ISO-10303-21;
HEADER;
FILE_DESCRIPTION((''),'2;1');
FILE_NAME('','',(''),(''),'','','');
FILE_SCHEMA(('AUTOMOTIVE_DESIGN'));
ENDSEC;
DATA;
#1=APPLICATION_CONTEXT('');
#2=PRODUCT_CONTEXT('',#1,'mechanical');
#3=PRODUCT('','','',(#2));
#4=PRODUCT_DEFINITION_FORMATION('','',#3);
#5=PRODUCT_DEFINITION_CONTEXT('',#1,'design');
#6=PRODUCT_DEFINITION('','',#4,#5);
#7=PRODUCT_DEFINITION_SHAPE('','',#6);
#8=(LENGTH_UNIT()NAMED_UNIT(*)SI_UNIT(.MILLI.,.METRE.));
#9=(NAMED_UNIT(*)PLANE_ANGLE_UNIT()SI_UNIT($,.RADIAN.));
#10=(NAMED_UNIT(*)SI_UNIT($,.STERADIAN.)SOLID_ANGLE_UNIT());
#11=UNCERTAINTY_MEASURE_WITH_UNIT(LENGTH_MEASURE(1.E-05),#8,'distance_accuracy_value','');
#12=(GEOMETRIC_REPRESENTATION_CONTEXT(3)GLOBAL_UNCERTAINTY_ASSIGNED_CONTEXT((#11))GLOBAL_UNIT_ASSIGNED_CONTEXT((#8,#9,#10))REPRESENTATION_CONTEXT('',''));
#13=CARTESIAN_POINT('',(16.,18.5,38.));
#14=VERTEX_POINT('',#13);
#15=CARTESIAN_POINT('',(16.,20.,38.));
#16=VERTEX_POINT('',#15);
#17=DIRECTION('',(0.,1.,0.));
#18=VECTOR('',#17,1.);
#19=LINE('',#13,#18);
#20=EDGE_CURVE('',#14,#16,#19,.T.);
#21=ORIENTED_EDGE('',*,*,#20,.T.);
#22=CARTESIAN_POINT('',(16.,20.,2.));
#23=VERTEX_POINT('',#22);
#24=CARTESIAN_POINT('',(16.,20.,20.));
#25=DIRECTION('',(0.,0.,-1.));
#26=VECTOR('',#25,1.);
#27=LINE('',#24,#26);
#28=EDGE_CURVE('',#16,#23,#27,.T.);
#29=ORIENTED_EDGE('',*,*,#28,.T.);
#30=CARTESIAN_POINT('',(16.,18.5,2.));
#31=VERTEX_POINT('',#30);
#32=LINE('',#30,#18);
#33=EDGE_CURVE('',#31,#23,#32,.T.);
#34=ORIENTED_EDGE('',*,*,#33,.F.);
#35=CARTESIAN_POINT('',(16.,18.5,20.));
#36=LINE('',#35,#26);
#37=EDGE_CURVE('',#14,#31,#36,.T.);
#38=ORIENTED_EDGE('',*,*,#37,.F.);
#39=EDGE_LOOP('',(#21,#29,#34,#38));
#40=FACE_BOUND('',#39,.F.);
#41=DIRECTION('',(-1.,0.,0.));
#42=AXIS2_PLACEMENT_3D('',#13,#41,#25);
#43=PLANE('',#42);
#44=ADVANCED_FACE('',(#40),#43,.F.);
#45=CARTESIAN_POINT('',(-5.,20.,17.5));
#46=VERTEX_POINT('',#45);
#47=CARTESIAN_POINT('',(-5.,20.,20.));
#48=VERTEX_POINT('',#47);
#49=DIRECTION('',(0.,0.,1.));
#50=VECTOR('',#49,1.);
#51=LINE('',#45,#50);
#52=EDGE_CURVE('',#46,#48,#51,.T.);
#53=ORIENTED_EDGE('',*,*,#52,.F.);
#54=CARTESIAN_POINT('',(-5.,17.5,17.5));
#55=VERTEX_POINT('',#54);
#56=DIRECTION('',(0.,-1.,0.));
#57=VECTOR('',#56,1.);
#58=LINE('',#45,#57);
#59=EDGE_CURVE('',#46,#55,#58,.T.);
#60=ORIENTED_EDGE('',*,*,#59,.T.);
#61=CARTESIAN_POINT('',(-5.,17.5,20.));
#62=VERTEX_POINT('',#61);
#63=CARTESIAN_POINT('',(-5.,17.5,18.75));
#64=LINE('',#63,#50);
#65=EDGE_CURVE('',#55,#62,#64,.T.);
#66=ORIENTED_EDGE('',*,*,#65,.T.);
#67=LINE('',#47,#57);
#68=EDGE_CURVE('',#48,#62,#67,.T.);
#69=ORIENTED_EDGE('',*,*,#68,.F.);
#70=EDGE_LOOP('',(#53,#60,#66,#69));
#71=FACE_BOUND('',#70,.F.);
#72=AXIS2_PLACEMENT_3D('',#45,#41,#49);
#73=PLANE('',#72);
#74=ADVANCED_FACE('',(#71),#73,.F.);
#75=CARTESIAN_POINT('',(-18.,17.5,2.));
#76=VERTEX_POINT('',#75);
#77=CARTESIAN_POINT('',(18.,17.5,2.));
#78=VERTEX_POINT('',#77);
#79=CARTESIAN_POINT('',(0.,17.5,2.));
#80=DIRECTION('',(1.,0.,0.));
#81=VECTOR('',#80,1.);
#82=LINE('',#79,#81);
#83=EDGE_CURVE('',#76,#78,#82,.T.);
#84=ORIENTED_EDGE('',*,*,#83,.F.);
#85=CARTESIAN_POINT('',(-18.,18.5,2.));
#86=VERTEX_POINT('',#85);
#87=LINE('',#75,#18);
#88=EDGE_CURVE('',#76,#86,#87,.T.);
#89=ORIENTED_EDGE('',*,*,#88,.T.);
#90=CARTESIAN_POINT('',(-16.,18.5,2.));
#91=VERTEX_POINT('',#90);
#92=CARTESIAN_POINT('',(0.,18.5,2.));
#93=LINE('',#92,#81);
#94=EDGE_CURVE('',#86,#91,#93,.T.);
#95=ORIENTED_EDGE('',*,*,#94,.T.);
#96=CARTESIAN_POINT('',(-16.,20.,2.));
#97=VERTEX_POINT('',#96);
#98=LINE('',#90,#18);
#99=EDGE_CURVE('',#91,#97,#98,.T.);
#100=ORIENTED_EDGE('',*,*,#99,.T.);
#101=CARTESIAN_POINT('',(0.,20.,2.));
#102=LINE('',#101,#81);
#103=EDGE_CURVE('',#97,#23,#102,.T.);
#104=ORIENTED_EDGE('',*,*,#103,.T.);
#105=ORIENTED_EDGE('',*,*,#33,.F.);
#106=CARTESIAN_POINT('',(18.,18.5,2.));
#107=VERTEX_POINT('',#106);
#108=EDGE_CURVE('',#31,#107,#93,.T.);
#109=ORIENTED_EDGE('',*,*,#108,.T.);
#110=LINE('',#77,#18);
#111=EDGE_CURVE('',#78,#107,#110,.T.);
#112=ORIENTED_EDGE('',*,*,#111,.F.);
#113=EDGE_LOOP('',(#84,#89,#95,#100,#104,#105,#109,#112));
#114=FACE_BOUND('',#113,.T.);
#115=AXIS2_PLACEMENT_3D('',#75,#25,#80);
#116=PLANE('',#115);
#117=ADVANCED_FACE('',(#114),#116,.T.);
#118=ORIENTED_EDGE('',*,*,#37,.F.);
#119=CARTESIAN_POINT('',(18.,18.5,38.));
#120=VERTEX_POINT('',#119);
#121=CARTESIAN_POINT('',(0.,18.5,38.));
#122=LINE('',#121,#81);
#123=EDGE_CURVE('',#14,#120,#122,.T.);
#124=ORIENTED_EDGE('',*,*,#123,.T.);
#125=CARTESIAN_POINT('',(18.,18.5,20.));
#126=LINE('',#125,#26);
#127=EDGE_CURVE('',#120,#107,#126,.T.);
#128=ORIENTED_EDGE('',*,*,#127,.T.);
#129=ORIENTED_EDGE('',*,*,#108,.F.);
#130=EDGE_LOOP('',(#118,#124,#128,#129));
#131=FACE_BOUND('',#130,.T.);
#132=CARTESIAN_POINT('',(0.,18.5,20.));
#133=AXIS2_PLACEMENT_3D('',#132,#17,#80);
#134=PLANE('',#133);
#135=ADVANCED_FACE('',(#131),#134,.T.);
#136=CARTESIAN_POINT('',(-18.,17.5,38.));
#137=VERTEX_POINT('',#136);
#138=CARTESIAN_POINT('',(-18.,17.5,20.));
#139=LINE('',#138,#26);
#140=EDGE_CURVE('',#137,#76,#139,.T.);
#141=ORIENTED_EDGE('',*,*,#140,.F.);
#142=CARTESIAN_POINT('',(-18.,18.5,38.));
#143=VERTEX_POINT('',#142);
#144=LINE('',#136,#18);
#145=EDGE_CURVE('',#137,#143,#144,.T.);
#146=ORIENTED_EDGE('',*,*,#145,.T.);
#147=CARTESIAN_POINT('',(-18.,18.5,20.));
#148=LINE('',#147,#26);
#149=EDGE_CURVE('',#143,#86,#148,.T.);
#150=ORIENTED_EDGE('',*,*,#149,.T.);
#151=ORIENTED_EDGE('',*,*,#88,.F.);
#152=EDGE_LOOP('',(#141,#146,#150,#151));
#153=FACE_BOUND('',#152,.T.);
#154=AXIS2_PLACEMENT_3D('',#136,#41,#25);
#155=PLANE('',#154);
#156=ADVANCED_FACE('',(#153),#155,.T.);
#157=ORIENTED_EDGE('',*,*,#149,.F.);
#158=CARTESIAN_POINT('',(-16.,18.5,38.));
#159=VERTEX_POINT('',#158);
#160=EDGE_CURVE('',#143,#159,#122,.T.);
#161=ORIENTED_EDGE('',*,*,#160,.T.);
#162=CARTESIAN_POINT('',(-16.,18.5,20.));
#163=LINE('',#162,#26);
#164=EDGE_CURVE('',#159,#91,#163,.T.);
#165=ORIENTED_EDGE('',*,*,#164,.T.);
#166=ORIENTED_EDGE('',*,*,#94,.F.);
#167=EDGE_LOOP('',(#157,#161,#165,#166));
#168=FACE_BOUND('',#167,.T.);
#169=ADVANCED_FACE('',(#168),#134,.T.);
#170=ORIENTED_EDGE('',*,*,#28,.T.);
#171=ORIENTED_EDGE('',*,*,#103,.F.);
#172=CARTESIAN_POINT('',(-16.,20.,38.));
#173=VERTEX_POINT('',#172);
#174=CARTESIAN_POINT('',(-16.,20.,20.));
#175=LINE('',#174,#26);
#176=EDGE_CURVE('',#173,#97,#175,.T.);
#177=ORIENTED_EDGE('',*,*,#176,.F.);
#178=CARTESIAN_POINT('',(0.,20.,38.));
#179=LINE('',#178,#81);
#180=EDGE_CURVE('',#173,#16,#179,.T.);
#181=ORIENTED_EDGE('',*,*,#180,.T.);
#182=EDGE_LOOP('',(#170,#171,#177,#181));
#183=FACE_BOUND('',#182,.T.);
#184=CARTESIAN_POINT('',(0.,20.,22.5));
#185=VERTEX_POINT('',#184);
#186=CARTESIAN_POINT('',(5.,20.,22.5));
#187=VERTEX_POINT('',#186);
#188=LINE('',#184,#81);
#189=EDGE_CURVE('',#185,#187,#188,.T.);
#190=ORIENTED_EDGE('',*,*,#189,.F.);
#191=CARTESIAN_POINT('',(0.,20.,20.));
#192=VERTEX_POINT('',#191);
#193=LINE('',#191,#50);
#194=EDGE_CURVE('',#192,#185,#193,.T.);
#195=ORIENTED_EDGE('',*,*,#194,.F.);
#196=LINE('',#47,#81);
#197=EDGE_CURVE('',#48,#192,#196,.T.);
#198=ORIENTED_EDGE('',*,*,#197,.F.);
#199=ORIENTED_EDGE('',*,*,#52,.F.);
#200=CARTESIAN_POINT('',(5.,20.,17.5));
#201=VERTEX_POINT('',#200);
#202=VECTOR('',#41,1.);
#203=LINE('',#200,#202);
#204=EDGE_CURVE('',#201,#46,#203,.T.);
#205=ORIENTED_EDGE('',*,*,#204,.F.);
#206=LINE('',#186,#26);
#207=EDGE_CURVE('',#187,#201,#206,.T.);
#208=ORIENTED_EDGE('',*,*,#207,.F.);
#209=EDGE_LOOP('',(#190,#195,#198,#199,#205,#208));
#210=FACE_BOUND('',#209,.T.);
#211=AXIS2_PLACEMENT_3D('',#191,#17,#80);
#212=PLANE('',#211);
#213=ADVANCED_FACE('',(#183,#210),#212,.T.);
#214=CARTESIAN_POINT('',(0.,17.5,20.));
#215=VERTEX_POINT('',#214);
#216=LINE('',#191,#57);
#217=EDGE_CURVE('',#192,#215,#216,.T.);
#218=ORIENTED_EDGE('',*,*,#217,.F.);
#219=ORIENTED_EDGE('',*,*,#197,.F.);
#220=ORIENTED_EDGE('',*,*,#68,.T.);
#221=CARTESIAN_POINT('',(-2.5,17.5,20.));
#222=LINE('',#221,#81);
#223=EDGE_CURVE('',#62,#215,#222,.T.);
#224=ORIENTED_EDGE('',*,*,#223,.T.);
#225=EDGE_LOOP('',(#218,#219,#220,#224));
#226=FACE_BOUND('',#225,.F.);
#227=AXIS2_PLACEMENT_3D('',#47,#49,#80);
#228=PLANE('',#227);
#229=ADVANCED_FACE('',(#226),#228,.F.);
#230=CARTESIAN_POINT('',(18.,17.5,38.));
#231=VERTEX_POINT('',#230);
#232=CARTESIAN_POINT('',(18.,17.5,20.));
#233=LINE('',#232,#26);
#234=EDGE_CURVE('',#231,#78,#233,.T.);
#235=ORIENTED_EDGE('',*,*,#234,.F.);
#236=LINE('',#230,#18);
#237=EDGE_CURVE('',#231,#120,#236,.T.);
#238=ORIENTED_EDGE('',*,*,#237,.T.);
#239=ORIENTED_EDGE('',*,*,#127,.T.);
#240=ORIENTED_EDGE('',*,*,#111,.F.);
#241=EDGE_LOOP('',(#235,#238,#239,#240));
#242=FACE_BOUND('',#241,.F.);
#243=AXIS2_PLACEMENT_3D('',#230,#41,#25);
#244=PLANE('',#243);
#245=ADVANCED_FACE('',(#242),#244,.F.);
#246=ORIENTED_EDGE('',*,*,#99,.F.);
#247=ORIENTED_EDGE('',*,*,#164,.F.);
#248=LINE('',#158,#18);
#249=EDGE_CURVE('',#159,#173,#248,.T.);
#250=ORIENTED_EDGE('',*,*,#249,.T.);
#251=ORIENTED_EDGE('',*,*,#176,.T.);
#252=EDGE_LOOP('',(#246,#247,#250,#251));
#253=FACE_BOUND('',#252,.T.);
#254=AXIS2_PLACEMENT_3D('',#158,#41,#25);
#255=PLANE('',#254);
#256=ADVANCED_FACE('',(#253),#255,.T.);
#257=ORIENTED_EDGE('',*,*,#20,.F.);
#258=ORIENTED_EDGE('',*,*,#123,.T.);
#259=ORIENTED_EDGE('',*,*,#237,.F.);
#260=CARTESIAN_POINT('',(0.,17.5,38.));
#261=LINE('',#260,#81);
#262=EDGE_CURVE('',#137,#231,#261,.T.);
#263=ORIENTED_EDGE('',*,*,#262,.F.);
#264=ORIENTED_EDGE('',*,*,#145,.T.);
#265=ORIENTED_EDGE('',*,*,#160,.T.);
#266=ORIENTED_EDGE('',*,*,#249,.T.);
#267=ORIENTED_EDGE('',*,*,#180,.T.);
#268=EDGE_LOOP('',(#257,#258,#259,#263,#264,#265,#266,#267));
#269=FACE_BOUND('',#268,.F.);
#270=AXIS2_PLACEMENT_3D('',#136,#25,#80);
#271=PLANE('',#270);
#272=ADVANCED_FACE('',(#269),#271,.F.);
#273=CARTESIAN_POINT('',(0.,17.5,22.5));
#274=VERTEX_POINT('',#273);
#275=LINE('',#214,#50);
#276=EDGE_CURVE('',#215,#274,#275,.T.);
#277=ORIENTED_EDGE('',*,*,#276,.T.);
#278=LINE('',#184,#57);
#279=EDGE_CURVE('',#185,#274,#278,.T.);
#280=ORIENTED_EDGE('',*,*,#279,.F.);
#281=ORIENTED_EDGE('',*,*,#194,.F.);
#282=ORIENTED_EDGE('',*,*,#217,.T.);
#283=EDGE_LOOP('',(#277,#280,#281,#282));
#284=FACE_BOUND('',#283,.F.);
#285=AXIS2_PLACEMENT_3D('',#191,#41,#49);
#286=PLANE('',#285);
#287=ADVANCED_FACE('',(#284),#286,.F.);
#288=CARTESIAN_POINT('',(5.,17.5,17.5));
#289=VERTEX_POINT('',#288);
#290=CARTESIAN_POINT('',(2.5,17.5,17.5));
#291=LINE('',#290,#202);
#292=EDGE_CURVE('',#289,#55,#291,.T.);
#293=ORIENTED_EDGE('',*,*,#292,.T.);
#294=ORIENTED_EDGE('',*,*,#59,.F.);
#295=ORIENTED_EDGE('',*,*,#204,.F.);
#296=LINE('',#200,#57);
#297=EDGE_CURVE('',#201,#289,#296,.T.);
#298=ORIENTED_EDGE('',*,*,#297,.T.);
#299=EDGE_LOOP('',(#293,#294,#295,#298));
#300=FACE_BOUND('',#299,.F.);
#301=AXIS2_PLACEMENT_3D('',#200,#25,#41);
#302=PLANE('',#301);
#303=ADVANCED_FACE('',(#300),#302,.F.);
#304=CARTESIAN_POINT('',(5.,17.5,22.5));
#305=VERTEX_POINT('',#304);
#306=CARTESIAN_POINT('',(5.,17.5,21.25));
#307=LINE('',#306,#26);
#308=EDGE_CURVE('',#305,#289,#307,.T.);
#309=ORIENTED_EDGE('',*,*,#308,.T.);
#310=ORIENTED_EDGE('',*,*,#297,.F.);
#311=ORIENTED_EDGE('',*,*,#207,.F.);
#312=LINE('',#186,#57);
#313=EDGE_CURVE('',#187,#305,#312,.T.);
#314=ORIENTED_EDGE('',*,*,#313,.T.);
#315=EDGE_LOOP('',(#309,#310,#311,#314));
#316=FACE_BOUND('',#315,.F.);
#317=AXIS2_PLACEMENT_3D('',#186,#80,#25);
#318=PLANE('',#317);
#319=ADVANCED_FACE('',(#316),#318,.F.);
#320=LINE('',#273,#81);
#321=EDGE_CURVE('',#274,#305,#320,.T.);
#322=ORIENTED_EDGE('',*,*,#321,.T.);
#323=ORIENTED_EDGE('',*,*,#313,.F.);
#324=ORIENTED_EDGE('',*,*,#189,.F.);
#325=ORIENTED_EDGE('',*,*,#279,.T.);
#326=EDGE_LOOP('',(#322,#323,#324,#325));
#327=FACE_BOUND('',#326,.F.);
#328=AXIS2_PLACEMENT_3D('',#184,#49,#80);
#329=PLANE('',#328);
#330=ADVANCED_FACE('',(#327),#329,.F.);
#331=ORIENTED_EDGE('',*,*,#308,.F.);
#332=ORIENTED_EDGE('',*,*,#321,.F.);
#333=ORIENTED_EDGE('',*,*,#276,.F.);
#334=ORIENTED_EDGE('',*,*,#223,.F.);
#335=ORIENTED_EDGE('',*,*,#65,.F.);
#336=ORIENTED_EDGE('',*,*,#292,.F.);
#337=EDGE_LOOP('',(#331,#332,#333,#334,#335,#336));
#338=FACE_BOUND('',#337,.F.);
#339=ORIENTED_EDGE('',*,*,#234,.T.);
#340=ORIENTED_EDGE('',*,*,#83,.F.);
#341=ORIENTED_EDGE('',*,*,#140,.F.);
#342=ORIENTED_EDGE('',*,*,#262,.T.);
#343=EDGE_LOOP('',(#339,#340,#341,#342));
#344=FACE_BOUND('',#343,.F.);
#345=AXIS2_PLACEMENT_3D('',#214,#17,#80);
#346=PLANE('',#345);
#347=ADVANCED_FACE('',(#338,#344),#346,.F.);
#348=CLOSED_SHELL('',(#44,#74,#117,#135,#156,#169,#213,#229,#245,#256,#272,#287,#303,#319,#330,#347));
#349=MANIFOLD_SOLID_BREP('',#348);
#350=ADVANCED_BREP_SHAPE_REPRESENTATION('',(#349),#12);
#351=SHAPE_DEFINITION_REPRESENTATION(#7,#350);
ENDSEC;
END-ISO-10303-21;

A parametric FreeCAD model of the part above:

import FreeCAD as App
import Part
import Sketcher
Q = App.Units.Quantity

doc = App.newDocument("Part")
body = doc.addObject("PartDesign::Body", "Body")

sketch1 = body.newObject("Sketcher::SketchObject", "Sketch")
sketch1.AttachmentSupport = (doc.getObject("XY_Plane"), [""])
sketch1.MapMode = "FlatFace"
sketch1.AttachmentOffset = App.Placement(App.Vector(0, 0, 1), App.Rotation())
sketch1.addGeometry(Part.LineSegment(App.Vector(-16, 18, 0), App.Vector(-16, -18, 0)), False)
sketch1.addGeometry(Part.LineSegment(App.Vector(-16, -18, 0), App.Vector(16, -18, 0)), False)
sketch1.addGeometry(Part.LineSegment(App.Vector(16, -18, 0), App.Vector(16, 18, 0)), False)
sketch1.addGeometry(Part.LineSegment(App.Vector(16, 18, 0), App.Vector(-16, 18, 0)), False)
sketch1.addConstraint(Sketcher.Constraint("Coincident", 0, 2, 1, 1))
sketch1.addConstraint(Sketcher.Constraint("Coincident", 1, 2, 2, 1))
sketch1.addConstraint(Sketcher.Constraint("Coincident", 2, 2, 3, 1))
sketch1.addConstraint(Sketcher.Constraint("Coincident", 3, 2, 0, 1))
sketch1.addConstraint(Sketcher.Constraint("Vertical", 0))
sketch1.addConstraint(Sketcher.Constraint("Horizontal", 1))
sketch1.addConstraint(Sketcher.Constraint("Vertical", 2))
sketch1.addConstraint(Sketcher.Constraint("Horizontal", 3))
sketch1.addConstraint(Sketcher.Constraint("Symmetric", 0, 2, 2, 2, -1, 1))
sketch1.addConstraint(Sketcher.Constraint("DistanceX", 1, 1, 1, 2, Q("32 mm")))
sketch1.addConstraint(Sketcher.Constraint("DistanceY", 0, 2, 0, 1, Q("36 mm")))
pad1 = body.newObject("PartDesign::Pad", "Pad")
pad1.Profile = sketch1
pad1.Length = 1.5
body2 = doc.addObject("PartDesign::Body", "Body001")

sketch2 = body2.newObject("Sketcher::SketchObject", "Sketch001")
sketch2.AttachmentSupport = (doc.getObject("XY_Plane001"), [""])
sketch2.MapMode = "FlatFace"
sketch2.addGeometry(Part.LineSegment(App.Vector(-18, 18, 0), App.Vector(-18, -18, 0)), False)
sketch2.addGeometry(Part.LineSegment(App.Vector(-18, -18, 0), App.Vector(18, -18, 0)), False)
sketch2.addGeometry(Part.LineSegment(App.Vector(18, -18, 0), App.Vector(18, 18, 0)), False)
sketch2.addGeometry(Part.LineSegment(App.Vector(18, 18, 0), App.Vector(-18, 18, 0)), False)
sketch2.addConstraint(Sketcher.Constraint("Coincident", 0, 2, 1, 1))
sketch2.addConstraint(Sketcher.Constraint("Coincident", 1, 2, 2, 1))
sketch2.addConstraint(Sketcher.Constraint("Coincident", 2, 2, 3, 1))
sketch2.addConstraint(Sketcher.Constraint("Coincident", 3, 2, 0, 1))
sketch2.addConstraint(Sketcher.Constraint("Vertical", 0))
sketch2.addConstraint(Sketcher.Constraint("Horizontal", 1))
sketch2.addConstraint(Sketcher.Constraint("Vertical", 2))
sketch2.addConstraint(Sketcher.Constraint("Horizontal", 3))
sketch2.addConstraint(Sketcher.Constraint("Symmetric", 0, 2, 2, 2, -1, 1))
sketch2.addConstraint(Sketcher.Constraint("Equal", 3, 0))
sketch2.addConstraint(Sketcher.Constraint("DistanceX", 1, 1, 1, 2, Q("36 mm")))
pad2 = body2.newObject("PartDesign::Pad", "Pad001")
pad2.Profile = sketch2
pad2.Length = 1
doc.recompute()

boolean = body2.newObject("PartDesign::Boolean", "Boolean")
boolean.Type = "Fuse"
boolean.addObjects([body])
body3 = doc.addObject("PartDesign::Body", "Body002")
doc.recompute()

body2.Placement = App.Placement(App.Vector(0, 17.5, 20), App.Rotation(App.Vector(1, 0, 0), 270))
boolean2 = body3.newObject("PartDesign::Boolean", "Boolean001")
boolean2.Type = "Fuse"
boolean2.addObjects([body2])
body4 = doc.addObject("PartDesign::Body", "Body003")
doc.recompute()

body3.Placement = App.Placement(App.Vector(0, 20, -17.5), App.Rotation(App.Vector(-1, 0, 0), 270))
boolean3 = body4.newObject("PartDesign::Boolean", "Boolean002")
boolean3.Type = "Fuse"
boolean3.addObjects([body3])

sketch3 = body4.newObject("Sketcher::SketchObject", "Sketch002")
sketch3.AttachmentSupport = (doc.getObject("XY_Plane003"), [""])
sketch3.MapMode = "FlatFace"
sketch3.AttachmentOffset = App.Placement(App.Vector(0, 0, 2.5), App.Rotation())
sketch3.addGeometry(Part.LineSegment(App.Vector(0, 0, 0), App.Vector(0, -2.5, 0)), False)
sketch3.addGeometry(Part.LineSegment(App.Vector(0, -2.5, 0), App.Vector(5, -2.5, 0)), False)
sketch3.addGeometry(Part.LineSegment(App.Vector(5, -2.5, 0), App.Vector(5, 2.5, 0)), False)
sketch3.addGeometry(Part.LineSegment(App.Vector(5, 2.5, 0), App.Vector(-5, 2.5, 0)), False)
sketch3.addGeometry(Part.LineSegment(App.Vector(-5, 2.5, 0), App.Vector(-5, 0, 0)), False)
sketch3.addGeometry(Part.LineSegment(App.Vector(-5, 0, 0), App.Vector(0, 0, 0)), False)
sketch3.addConstraint(Sketcher.Constraint("Coincident", 0, 2, 1, 1))
sketch3.addConstraint(Sketcher.Constraint("Coincident", 1, 2, 2, 1))
sketch3.addConstraint(Sketcher.Constraint("Coincident", 2, 2, 3, 1))
sketch3.addConstraint(Sketcher.Constraint("Coincident", 3, 2, 4, 1))
sketch3.addConstraint(Sketcher.Constraint("Coincident", 4, 2, 5, 1))
sketch3.addConstraint(Sketcher.Constraint("Coincident", 5, 2, 0, 1))
sketch3.addConstraint(Sketcher.Constraint("Vertical", 0))
sketch3.addConstraint(Sketcher.Constraint("Horizontal", 1))
sketch3.addConstraint(Sketcher.Constraint("Vertical", 2))
sketch3.addConstraint(Sketcher.Constraint("Horizontal", 3))
sketch3.addConstraint(Sketcher.Constraint("Vertical", 4))
sketch3.addConstraint(Sketcher.Constraint("Horizontal", 5))
sketch3.addConstraint(Sketcher.Constraint("Coincident", 5, 2, -1, 1))
sketch3.addConstraint(Sketcher.Constraint("Symmetric", 1, 2, 3, 2, -1, 1))
sketch3.addConstraint(Sketcher.Constraint("Equal", 5, 2))
sketch3.addConstraint(Sketcher.Constraint("DistanceX", 1, 1, 1, 2, Q("5 mm")))
pocket1 = body4.newObject("PartDesign::Pocket", "Pocket")
pocket1.Profile = sketch3
pocket1.Length = 5
body5 = doc.addObject("PartDesign::Body", "Body004")
doc.recompute()

body4.Placement = App.Placement(App.Vector(0, 17.5, 20), App.Rotation(App.Vector(1, 0, 0), 270))
boolean4 = body5.newObject("PartDesign::Boolean", "Boolean003")
boolean4.Type = "Fuse"
boolean4.addObjects([body4])

doc.recompute()
